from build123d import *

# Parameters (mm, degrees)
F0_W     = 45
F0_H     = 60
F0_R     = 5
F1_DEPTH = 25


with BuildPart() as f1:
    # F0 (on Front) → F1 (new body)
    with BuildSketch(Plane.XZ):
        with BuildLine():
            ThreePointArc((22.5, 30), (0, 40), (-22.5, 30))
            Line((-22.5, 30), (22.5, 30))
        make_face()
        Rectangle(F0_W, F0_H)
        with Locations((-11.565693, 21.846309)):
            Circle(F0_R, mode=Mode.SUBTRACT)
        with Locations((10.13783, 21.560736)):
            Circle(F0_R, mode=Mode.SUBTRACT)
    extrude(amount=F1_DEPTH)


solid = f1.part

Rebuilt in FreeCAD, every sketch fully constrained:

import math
import FreeCAD as App
import Part
import Sketcher
from FreeCAD import Vector

doc = App.newDocument("Part")
body = doc.addObject("PartDesign::Body", "Body")

# Sketch on XZ plane
sketch1 = body.newObject("Sketcher::SketchObject", "Sketch")
sketch1.AttachmentSupport = (doc.getObject("XZ_Plane"), [""])
sketch1.MapMode = "FlatFace"
sketch1.addGeometry([
    Part.ArcOfCircle(Part.Circle(Vector(0, 10, 0), Vector(0, 0, 1), 30), math.radians(42), math.radians(138)),  # 0
    Part.LineSegment(Vector(-22, 30, 0), Vector(-22, -30, 0)),  # 1
    Part.LineSegment(Vector(-22, -30, 0), Vector(22, -30, 0)),  # 2
    Part.LineSegment(Vector(22, -30, 0), Vector(22, 30, 0)),  # 3
    Part.Circle(Vector(10, 22, 0), Vector(0, 0, 1), 5),  # 4
    Part.Circle(Vector(-12, 22, 0), Vector(0, 0, 1), 5),  # 5
], False)
sketch1.addConstraint([
    Sketcher.Constraint("Coincident", 0, 2, 1, 1),
    Sketcher.Constraint("Coincident", 1, 2, 2, 1),
    Sketcher.Constraint("Coincident", 2, 2, 3, 1),
    Sketcher.Constraint("Coincident", 3, 2, 0, 1),
    Sketcher.Constraint("Vertical", 1),
    Sketcher.Constraint("Horizontal", 2),
    Sketcher.Constraint("Vertical", 3),
    Sketcher.Constraint("Equal", 4, 5),
    Sketcher.Constraint("Symmetric", 0, 2, 2, 2, -1, 1),
    Sketcher.Constraint("PointOnObject", 0, 3, -2),
    Sketcher.Constraint("Diameter", 4, 10.0),
    Sketcher.Constraint("DistanceX", 2, 1, 2, 2, 45.0),
    Sketcher.Constraint("DistanceY", 1, 2, 1, 1, 60.0),
    Sketcher.Constraint("Radius", 0, 30.3125),
    Sketcher.Constraint("DistanceX", -1, 1, 4, 3, 10.13783),
    Sketcher.Constraint("DistanceY", -1, 1, 5, 3, 21.846309),
    Sketcher.Constraint("DistanceY", -1, 1, 4, 3, 21.560736),
    Sketcher.Constraint("DistanceX", 5, 3, -1, 1, 11.565693),
])
pad1 = body.newObject("PartDesign::Pad", "Pad")
pad1.Profile = sketch1
pad1.Length = 25

doc.recompute()
